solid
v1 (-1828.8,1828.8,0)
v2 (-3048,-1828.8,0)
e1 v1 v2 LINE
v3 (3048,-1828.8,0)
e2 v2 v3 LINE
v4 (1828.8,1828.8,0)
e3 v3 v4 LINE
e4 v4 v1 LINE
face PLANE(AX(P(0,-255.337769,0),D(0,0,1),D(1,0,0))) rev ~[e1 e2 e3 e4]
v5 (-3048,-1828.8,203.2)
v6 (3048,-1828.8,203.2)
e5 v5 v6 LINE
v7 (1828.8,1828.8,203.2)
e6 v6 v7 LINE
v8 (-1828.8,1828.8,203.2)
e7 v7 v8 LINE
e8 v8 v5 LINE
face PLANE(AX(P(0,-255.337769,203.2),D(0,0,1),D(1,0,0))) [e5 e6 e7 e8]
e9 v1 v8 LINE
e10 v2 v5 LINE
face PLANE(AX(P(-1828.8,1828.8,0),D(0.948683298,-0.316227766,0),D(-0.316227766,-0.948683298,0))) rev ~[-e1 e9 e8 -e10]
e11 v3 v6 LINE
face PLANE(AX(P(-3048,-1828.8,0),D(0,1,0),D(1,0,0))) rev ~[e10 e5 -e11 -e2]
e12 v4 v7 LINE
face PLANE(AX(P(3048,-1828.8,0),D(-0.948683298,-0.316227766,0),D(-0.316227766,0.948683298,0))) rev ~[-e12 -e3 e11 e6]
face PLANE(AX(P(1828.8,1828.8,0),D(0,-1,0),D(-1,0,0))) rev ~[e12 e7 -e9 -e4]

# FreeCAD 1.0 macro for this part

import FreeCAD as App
import Part
import Sketcher
from FreeCAD import Vector
Q = App.Units.Quantity

doc = App.newDocument("Part")
body = doc.addObject("PartDesign::Body", "Body")

# Sketch on XY plane
sketch1 = body.newObject("Sketcher::SketchObject", "Sketch")
sketch1.AttachmentSupport = (doc.getObject("XY_Plane"), [""])
sketch1.MapMode = "FlatFace"
sketch1.addGeometry(Part.LineSegment(Vector(-3048, -1829, 0), Vector(3048, -1829, 0)), False)
sketch1.addGeometry(Part.LineSegment(Vector(3048, -1829, 0), Vector(1829, 1829, 0)), False)
sketch1.addGeometry(Part.LineSegment(Vector(1829, 1829, 0), Vector(-1829, 1829, 0)), False)
sketch1.addGeometry(Part.LineSegment(Vector(-1829, 1829, 0), Vector(-3048, -1829, 0)), False)
sketch1.addConstraint(Sketcher.Constraint("Coincident", 0, 2, 1, 1))
sketch1.addConstraint(Sketcher.Constraint("Coincident", 1, 2, 2, 1))
sketch1.addConstraint(Sketcher.Constraint("Coincident", 2, 2, 3, 1))
sketch1.addConstraint(Sketcher.Constraint("Coincident", 3, 2, 0, 1))
sketch1.addConstraint(Sketcher.Constraint("Horizontal", 0))
sketch1.addConstraint(Sketcher.Constraint("Horizontal", 2))
sketch1.addConstraint(Sketcher.Constraint("Equal", 1, 3))
sketch1.addConstraint(Sketcher.Constraint("DistanceX", 0, 1, 0, 2, Q("240 in")))
sketch1.addConstraint(Sketcher.Constraint("DistanceX", 2, 2, 2, 1, Q("144 in")))
sketch1.addConstraint(Sketcher.Constraint("DistanceX", -1, 1, 0, 2, Q("120 in")))
sketch1.addConstraint(Sketcher.Constraint("DistanceY", 0, 2, -1, 1, Q("72 in")))
sketch1.addConstraint(Sketcher.Constraint("DistanceY", -1, 1, 1, 2, Q("72 in")))
pad1 = body.newObject("PartDesign::Pad", "Pad")
pad1.Profile = sketch1
pad1.Length = Q("8 in")

doc.recompute()
